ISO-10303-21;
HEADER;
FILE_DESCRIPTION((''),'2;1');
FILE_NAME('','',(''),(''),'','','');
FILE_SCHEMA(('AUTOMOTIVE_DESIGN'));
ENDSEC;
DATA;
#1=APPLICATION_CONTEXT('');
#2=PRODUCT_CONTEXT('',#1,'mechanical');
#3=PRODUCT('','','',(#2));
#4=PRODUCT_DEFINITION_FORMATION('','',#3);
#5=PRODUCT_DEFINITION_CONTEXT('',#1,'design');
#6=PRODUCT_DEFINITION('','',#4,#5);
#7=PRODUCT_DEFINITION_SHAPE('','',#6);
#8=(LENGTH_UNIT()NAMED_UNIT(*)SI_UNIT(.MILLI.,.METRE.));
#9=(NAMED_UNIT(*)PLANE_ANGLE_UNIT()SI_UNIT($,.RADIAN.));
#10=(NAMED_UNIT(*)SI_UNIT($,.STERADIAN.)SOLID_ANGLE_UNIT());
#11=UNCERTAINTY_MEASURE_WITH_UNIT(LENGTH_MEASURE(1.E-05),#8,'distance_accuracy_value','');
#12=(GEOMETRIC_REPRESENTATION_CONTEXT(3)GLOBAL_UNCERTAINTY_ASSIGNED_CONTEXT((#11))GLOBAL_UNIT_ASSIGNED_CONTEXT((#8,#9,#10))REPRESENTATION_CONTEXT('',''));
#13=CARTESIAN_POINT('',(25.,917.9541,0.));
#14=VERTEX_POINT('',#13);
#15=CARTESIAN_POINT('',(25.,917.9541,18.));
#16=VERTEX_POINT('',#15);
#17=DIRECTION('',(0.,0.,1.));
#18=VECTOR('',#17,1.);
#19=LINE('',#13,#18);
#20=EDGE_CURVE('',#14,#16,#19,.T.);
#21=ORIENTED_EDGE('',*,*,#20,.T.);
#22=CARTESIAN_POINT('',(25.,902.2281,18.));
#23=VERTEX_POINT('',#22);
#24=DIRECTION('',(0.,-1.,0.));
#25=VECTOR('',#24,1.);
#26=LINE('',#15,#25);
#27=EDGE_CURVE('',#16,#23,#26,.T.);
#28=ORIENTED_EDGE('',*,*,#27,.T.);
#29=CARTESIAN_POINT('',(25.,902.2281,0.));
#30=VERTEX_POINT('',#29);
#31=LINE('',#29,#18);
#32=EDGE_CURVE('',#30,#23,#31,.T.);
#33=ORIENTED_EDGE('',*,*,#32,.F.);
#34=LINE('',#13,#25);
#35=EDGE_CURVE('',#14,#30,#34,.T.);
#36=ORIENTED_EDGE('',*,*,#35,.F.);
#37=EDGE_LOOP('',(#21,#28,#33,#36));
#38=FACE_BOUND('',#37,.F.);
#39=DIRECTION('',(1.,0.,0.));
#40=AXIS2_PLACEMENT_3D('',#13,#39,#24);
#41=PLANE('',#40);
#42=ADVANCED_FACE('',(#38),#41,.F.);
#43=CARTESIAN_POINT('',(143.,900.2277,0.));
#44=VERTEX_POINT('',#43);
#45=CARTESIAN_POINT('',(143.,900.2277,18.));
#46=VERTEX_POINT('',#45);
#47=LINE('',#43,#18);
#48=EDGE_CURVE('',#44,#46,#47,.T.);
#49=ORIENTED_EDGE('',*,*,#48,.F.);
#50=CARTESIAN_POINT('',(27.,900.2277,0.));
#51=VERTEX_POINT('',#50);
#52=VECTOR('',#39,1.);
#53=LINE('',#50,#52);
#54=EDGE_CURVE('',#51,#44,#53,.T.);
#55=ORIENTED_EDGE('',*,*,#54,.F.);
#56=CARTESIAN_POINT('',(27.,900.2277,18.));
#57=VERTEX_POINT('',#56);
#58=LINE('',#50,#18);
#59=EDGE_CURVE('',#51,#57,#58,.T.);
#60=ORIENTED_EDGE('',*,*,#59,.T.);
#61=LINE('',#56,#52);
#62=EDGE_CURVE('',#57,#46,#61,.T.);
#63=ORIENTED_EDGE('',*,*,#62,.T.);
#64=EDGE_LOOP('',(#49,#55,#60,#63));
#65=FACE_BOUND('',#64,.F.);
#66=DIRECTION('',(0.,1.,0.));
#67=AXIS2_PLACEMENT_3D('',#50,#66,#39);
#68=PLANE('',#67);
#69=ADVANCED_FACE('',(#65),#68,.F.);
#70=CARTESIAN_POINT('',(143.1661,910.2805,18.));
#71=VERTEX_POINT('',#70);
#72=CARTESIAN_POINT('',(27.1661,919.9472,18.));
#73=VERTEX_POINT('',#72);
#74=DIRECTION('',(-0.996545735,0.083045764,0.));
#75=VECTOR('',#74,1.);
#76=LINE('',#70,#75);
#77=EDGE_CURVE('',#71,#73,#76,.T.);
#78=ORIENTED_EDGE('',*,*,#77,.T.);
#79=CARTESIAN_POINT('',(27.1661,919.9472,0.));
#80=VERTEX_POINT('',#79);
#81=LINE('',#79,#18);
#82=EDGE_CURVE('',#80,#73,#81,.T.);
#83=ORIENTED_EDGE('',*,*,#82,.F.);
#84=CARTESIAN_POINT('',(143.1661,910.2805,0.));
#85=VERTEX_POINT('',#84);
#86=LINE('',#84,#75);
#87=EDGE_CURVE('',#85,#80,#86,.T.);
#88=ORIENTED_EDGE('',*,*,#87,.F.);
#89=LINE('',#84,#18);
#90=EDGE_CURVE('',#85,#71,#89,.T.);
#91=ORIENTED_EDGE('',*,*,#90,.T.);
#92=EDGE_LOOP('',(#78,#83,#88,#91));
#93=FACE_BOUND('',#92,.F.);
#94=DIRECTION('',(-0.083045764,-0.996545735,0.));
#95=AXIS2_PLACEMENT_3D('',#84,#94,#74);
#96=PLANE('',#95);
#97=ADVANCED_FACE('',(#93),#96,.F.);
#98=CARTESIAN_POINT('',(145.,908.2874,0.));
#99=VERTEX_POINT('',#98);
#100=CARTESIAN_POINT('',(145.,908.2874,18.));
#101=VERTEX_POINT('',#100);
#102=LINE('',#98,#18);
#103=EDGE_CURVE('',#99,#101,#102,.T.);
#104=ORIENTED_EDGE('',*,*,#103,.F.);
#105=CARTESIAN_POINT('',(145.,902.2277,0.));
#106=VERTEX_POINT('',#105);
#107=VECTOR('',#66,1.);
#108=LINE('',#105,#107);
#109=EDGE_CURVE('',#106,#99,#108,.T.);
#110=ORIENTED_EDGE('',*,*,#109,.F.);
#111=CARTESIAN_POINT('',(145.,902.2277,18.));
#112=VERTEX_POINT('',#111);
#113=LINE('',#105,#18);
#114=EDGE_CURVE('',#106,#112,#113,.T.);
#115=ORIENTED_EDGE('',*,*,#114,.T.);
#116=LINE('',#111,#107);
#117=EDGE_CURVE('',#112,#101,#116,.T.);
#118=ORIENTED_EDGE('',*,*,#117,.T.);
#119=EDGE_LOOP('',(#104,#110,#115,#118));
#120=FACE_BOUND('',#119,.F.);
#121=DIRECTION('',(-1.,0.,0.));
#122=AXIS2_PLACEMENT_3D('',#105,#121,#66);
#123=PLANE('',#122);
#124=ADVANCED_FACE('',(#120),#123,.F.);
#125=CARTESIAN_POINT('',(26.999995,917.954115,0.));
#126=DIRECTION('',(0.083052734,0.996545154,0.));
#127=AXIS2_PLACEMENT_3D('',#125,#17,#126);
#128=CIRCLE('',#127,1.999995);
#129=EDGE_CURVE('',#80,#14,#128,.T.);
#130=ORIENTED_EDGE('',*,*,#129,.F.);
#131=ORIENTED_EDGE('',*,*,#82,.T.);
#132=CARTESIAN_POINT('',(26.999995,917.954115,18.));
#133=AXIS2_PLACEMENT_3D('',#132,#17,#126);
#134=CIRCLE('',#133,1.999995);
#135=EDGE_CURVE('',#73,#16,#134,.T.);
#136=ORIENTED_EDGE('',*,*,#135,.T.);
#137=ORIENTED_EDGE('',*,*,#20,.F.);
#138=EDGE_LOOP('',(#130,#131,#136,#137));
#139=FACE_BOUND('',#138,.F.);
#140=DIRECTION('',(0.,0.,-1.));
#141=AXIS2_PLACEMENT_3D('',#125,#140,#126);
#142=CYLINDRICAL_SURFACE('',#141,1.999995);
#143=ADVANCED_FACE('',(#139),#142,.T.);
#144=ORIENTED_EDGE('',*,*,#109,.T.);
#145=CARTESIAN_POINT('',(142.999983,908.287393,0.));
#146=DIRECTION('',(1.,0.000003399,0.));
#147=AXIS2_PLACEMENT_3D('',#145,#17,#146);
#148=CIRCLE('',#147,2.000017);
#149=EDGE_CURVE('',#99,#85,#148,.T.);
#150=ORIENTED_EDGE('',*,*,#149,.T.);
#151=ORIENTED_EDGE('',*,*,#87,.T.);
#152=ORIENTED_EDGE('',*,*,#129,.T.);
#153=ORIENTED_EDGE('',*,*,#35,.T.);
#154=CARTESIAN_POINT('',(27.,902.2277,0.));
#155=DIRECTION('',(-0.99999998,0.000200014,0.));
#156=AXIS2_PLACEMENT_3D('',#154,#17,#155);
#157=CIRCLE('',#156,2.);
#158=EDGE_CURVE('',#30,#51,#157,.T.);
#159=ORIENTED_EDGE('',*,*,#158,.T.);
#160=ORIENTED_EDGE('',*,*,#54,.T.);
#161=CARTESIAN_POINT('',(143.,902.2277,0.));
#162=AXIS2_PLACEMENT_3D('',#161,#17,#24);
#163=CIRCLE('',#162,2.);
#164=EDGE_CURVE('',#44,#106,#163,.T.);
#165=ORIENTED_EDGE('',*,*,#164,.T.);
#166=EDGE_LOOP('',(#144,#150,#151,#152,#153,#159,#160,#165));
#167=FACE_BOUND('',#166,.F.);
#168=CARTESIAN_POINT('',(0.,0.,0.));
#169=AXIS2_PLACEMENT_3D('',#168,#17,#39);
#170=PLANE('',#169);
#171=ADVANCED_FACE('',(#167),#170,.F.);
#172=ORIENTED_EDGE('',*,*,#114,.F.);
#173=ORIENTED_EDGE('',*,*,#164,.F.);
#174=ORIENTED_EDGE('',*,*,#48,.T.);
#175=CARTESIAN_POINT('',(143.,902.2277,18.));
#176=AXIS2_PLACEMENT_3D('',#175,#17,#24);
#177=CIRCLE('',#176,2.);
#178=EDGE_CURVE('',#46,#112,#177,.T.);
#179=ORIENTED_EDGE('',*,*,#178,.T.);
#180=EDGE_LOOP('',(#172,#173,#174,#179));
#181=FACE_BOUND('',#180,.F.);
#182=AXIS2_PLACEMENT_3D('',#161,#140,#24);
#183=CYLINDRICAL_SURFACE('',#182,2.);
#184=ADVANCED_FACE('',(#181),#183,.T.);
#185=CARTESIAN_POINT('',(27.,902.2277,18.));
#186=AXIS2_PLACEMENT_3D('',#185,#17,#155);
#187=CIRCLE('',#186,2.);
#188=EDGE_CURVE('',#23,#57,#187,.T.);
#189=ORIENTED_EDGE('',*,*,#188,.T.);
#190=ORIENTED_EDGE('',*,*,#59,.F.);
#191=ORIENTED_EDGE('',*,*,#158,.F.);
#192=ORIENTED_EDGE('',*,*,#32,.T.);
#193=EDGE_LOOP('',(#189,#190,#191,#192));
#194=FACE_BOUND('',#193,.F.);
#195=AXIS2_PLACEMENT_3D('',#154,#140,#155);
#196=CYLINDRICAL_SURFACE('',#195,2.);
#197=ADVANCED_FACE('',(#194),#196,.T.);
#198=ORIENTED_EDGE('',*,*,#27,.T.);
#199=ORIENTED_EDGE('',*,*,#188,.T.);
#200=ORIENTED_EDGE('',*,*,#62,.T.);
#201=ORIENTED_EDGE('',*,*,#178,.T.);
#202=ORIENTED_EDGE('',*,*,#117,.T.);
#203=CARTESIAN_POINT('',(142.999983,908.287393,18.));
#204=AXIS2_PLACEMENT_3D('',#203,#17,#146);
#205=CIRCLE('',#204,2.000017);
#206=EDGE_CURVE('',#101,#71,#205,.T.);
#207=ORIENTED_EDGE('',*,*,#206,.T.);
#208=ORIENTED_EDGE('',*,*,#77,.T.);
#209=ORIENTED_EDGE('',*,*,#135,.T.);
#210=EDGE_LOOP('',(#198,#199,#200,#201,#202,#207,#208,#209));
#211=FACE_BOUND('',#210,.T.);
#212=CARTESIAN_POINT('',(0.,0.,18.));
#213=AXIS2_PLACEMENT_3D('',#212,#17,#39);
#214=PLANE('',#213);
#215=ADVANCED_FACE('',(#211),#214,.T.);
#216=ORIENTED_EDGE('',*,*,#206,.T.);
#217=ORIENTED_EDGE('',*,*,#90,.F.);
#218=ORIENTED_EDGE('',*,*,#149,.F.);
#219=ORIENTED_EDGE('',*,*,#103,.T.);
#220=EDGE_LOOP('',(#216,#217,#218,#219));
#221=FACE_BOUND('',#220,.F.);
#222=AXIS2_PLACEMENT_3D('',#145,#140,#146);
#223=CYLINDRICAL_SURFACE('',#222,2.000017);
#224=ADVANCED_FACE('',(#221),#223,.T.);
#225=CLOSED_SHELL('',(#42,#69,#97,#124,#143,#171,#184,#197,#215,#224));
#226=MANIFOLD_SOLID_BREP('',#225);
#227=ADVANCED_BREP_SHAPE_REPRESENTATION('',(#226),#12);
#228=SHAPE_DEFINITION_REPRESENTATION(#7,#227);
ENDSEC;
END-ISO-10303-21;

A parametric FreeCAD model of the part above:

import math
import FreeCAD as App
import Part
import Sketcher

V = App.Vector
Q = App.Units.Quantity

doc = App.newDocument("Part")
body = doc.addObject("PartDesign::Body", "Body")

sketch1 = doc.addObject("Sketcher::SketchObject", "Sketch")
body.addObject(sketch1)
sketch1.AttachmentSupport = (doc.XY_Plane, [""])
sketch1.MapMode = "FlatFace"
sketch1.addGeometry(Part.ArcOfCircle(Part.Circle(V(27, 918, 0), V(0, 0, 1), 2), math.radians(85), math.radians(180)), False)
sketch1.addGeometry(Part.LineSegment(V(25, 918, 0), V(25, 902.2, 0)), False)
sketch1.addGeometry(Part.ArcOfCircle(Part.Circle(V(27, 902.2, 0), V(0, 0, 1), 2), math.radians(180), math.radians(270)), False)
sketch1.addGeometry(Part.LineSegment(V(27, 900.2, 0), V(143, 900.2, 0)), False)
sketch1.addGeometry(Part.ArcOfCircle(Part.Circle(V(143, 902.2, 0), V(0, 0, 1), 2), math.radians(-90), math.radians(0)), False)
sketch1.addGeometry(Part.LineSegment(V(145, 902.2, 0), V(145, 908.3, 0)), False)
sketch1.addGeometry(Part.ArcOfCircle(Part.Circle(V(143, 908.3, 0), V(0, 0, 1), 2), math.radians(0), math.radians(85)), False)
sketch1.addGeometry(Part.LineSegment(V(143.2, 910.3, 0), V(27.2, 919.9, 0)), False)
sketch1.addConstraint(Sketcher.Constraint("Tangent", 0, 2, 1, 1))
sketch1.addConstraint(Sketcher.Constraint("Tangent", 1, 2, 2, 1))
sketch1.addConstraint(Sketcher.Constraint("Tangent", 2, 2, 3, 1))
sketch1.addConstraint(Sketcher.Constraint("Tangent", 3, 2, 4, 1))
sketch1.addConstraint(Sketcher.Constraint("Tangent", 4, 2, 5, 1))
sketch1.addConstraint(Sketcher.Constraint("Tangent", 5, 2, 6, 1))
sketch1.addConstraint(Sketcher.Constraint("Tangent", 6, 2, 7, 1))
sketch1.addConstraint(Sketcher.Constraint("Tangent", 7, 2, 0, 1))
sketch1.addConstraint(Sketcher.Constraint("Vertical", 1))
sketch1.addConstraint(Sketcher.Constraint("Horizontal", 3))
sketch1.addConstraint(Sketcher.Constraint("Vertical", 5))
sketch1.addConstraint(Sketcher.Constraint("Equal", 0, 2))
sketch1.addConstraint(Sketcher.Constraint("Equal", 2, 4))
sketch1.addConstraint(Sketcher.Constraint("Equal", 4, 6))
sketch1.addConstraint(Sketcher.Constraint("Radius", 0, Q("2 mm")))
sketch1.addConstraint(Sketcher.Constraint("DistanceX", 3, 1, 3, 2, Q("116 mm")))
sketch1.addConstraint(Sketcher.Constraint("DistanceX", -1, 1, 0, 3, Q("27 mm")))
sketch1.addConstraint(Sketcher.Constraint("DistanceY", 1, 2, 1, 1, Q("15.726 mm")))
sketch1.addConstraint(Sketcher.Constraint("Distance", 7, Q("116.402 mm")))
sketch1.addConstraint(Sketcher.Constraint("DistanceY", -1, 1, 0, 3, Q("917.954 mm")))
pad1 = doc.addObject("PartDesign::Pad", "Pad")
body.addObject(pad1)
pad1.Profile = sketch1
pad1.Length = 18

doc.recompute()
